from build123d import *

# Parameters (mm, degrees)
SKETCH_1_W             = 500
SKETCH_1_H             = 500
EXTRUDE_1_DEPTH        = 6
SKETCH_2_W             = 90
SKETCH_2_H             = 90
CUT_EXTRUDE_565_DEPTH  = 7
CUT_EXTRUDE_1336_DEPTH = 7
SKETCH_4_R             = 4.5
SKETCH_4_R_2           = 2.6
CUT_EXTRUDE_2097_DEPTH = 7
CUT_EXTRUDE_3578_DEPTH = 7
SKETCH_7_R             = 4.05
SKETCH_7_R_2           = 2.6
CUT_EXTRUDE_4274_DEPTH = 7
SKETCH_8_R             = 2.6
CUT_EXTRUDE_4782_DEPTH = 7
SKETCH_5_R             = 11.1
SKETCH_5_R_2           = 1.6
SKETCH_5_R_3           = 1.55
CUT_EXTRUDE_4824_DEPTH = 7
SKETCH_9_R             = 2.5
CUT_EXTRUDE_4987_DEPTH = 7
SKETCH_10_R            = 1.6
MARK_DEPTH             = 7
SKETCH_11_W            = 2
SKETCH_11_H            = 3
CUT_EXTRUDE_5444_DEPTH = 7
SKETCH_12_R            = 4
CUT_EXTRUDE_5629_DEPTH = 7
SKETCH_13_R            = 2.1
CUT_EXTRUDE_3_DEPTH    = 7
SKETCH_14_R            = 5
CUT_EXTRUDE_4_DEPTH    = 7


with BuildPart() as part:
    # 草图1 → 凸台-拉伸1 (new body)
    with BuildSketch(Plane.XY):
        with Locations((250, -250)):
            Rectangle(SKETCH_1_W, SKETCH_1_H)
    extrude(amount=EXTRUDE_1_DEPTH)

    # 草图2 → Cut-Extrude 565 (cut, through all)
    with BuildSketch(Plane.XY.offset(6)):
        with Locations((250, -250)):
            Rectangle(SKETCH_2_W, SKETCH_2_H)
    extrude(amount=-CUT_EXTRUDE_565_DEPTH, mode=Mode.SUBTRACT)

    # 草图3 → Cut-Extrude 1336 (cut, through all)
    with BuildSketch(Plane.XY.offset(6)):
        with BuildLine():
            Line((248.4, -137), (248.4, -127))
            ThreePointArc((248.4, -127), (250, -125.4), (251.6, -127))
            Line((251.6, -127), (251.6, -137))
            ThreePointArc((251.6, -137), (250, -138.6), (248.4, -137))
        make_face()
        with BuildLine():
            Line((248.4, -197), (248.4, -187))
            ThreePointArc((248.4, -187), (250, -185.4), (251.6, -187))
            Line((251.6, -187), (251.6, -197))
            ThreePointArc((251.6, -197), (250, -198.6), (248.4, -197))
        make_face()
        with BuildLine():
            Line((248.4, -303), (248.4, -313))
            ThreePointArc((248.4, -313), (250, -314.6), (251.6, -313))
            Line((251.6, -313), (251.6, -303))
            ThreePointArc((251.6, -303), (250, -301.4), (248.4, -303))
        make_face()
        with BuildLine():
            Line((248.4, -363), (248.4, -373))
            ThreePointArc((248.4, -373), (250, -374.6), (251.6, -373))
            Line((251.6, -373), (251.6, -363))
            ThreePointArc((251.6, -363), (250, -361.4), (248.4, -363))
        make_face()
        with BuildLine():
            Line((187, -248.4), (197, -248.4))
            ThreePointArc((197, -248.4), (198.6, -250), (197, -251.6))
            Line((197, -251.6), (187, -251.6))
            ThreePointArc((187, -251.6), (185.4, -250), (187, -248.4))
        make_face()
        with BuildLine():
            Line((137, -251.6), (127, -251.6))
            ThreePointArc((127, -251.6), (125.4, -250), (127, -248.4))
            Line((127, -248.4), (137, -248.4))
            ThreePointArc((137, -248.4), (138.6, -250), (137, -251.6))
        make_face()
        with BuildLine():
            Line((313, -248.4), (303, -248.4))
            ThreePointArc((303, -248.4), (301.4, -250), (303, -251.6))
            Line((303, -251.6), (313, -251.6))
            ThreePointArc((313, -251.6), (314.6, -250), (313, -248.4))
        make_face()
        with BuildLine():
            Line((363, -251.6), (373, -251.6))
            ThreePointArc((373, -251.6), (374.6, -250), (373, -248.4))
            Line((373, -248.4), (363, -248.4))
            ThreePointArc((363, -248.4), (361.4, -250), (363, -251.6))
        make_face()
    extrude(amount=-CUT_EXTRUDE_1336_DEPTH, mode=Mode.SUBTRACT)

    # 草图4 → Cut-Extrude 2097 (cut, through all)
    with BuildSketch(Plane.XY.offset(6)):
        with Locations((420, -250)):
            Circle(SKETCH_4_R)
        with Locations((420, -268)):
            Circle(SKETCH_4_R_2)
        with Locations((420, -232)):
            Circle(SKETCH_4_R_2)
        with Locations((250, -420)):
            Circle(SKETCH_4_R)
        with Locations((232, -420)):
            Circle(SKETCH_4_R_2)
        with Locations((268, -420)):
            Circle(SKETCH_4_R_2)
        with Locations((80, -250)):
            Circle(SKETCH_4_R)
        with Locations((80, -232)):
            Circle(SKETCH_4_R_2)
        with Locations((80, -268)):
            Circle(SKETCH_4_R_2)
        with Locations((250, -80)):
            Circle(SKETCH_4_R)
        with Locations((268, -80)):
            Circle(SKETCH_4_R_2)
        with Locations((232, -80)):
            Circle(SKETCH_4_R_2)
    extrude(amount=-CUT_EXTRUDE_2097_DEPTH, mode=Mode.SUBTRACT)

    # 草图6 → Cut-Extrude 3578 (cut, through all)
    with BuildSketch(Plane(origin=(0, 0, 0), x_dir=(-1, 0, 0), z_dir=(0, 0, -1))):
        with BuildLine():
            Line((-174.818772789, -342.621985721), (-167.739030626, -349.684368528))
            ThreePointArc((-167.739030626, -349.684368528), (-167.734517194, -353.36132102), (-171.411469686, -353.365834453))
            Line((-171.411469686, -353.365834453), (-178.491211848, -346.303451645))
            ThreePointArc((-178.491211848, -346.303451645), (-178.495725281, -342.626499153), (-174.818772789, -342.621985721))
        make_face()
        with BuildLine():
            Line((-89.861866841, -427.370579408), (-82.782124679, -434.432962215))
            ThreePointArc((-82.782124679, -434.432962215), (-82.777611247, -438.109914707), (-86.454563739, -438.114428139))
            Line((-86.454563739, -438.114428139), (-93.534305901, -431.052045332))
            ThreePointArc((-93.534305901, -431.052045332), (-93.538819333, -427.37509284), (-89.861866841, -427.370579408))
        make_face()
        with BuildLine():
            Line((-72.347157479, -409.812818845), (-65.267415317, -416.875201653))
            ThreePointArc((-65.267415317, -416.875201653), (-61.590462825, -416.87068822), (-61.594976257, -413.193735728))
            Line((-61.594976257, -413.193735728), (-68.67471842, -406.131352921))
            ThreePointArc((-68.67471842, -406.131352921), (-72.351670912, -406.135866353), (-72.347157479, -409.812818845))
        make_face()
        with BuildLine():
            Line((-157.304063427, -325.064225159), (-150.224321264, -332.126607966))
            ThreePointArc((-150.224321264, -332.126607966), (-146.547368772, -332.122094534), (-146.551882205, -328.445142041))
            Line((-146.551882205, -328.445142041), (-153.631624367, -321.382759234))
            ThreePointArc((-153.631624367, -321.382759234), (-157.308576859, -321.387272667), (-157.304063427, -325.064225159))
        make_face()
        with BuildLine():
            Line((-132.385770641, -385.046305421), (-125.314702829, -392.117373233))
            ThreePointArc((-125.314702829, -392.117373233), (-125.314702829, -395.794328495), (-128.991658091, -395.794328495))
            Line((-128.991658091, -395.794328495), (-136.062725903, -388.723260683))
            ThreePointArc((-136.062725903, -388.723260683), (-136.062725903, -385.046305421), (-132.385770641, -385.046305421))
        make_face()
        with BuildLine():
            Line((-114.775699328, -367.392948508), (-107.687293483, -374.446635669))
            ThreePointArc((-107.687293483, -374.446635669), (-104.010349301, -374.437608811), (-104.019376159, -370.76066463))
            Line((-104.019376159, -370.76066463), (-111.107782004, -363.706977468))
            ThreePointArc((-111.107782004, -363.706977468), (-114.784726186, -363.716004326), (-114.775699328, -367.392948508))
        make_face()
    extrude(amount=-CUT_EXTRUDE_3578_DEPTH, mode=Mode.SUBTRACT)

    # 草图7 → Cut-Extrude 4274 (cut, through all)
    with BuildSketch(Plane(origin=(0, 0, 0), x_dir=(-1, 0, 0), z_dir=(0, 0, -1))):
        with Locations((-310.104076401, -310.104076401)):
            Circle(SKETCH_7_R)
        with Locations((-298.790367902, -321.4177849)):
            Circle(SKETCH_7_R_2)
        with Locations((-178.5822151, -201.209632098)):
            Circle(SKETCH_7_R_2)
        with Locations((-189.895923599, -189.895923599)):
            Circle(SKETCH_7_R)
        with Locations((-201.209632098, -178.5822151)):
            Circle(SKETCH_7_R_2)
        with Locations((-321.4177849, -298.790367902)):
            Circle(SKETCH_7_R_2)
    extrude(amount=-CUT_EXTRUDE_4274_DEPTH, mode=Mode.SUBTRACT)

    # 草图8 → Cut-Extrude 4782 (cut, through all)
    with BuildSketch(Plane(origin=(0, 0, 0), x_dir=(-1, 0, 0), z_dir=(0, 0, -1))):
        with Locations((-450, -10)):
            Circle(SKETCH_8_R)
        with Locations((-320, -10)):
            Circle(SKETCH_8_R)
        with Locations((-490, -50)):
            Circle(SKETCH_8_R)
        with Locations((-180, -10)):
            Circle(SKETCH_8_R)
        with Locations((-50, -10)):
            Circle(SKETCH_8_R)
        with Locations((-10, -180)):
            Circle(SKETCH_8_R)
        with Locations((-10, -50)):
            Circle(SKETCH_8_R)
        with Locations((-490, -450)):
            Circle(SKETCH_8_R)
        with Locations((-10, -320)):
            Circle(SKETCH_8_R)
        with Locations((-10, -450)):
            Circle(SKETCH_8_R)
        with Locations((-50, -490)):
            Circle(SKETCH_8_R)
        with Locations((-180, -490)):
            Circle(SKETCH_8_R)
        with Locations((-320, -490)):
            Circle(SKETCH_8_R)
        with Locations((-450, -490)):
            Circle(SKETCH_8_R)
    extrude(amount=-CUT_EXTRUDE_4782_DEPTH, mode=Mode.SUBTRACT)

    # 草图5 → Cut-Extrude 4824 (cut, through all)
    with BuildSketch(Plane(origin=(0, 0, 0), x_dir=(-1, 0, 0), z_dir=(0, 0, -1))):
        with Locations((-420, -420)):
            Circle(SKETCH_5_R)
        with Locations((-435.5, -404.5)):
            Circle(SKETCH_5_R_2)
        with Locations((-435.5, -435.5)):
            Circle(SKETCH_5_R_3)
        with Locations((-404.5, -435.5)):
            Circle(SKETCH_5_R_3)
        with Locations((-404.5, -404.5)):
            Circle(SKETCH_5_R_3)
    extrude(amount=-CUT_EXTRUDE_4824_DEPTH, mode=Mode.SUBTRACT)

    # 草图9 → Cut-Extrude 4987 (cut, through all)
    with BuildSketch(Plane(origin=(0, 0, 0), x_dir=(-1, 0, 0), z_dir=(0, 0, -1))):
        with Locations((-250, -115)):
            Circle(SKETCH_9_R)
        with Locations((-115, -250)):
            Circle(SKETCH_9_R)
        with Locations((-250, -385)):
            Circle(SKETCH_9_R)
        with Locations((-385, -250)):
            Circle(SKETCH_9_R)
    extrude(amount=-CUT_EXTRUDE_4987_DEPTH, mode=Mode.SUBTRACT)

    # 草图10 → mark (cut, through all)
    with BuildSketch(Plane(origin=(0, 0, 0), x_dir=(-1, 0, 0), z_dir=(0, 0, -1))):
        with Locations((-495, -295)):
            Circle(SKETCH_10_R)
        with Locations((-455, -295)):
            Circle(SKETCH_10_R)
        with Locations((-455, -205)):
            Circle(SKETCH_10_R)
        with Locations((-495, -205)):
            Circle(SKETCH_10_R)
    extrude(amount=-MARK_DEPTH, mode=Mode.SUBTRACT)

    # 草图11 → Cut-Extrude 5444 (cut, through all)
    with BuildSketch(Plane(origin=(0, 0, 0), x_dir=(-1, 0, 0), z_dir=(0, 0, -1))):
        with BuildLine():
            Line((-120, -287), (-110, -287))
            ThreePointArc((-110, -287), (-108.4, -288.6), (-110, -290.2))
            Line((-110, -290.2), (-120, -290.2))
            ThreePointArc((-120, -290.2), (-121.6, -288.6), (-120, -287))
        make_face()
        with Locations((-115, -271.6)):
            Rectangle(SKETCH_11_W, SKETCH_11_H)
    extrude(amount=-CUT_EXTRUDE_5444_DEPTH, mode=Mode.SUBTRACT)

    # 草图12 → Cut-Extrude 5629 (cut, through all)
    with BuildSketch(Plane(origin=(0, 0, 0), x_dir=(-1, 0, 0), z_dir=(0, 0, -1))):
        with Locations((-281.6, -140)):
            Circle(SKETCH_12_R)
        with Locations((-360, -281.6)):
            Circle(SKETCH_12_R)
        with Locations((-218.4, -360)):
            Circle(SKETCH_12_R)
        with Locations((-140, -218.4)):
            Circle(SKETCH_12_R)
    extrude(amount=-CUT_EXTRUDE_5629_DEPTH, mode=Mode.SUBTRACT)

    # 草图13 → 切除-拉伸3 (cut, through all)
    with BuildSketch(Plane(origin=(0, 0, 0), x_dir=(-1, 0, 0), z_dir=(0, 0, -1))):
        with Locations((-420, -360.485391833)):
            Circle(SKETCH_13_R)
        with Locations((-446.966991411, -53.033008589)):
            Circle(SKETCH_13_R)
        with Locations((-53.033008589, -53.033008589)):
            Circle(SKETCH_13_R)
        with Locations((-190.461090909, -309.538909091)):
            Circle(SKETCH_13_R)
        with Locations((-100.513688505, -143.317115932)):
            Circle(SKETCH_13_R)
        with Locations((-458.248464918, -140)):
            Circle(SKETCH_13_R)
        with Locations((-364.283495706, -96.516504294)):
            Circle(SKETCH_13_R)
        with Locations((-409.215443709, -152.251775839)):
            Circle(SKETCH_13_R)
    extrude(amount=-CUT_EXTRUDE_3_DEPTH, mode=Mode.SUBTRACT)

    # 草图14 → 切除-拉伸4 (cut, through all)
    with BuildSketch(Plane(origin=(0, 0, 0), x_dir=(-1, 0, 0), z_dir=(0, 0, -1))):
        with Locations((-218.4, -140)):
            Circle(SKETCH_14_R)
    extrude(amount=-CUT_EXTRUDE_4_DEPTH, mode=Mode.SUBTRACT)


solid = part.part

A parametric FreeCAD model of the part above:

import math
import FreeCAD as App
import Part
import Sketcher

V = App.Vector
Q = App.Units.Quantity

doc = App.newDocument("Part")
body = doc.addObject("PartDesign::Body", "Body")

# Sketch on XY plane
sketch1 = doc.addObject("Sketcher::SketchObject", "Sketch")
body.addObject(sketch1)
sketch1.AttachmentSupport = (doc.XY_Plane, [""])
sketch1.MapMode = "FlatFace"
sketch1.addGeometry(Part.LineSegment(V(0, 0, 0), V(0, -500, 0)), False)
sketch1.addGeometry(Part.LineSegment(V(0, -500, 0), V(500, -500, 0)), False)
sketch1.addGeometry(Part.LineSegment(V(500, -500, 0), V(500, 0, 0)), False)
sketch1.addGeometry(Part.LineSegment(V(500, 0, 0), V(0, 0, 0)), False)
sketch1.addConstraint(Sketcher.Constraint("Coincident", 0, 2, 1, 1))
sketch1.addConstraint(Sketcher.Constraint("Coincident", 1, 2, 2, 1))
sketch1.addConstraint(Sketcher.Constraint("Coincident", 2, 2, 3, 1))
sketch1.addConstraint(Sketcher.Constraint("Coincident", 3, 2, 0, 1))
sketch1.addConstraint(Sketcher.Constraint("Vertical", 0))
sketch1.addConstraint(Sketcher.Constraint("Horizontal", 1))
sketch1.addConstraint(Sketcher.Constraint("Vertical", 2))
sketch1.addConstraint(Sketcher.Constraint("Horizontal", 3))
sketch1.addConstraint(Sketcher.Constraint("Coincident", 3, 2, -1, 1))
sketch1.addConstraint(Sketcher.Constraint("Equal", 3, 0))
sketch1.addConstraint(Sketcher.Constraint("DistanceX", 1, 1, 1, 2, 500.0))
pad1 = doc.addObject("PartDesign::Pad", "Pad")
body.addObject(pad1)
pad1.Profile = sketch1
pad1.Length = 6

# Sketch on XY plane
sketch2 = doc.addObject("Sketcher::SketchObject", "Sketch001")
body.addObject(sketch2)
sketch2.AttachmentSupport = (doc.XY_Plane, [""])
sketch2.MapMode = "FlatFace"
sketch2.AttachmentOffset = App.Placement(V(0, 0, 6), App.Rotation())
sketch2.addGeometry(Part.LineSegment(V(205, -205, 0), V(205, -295, 0)), False)
sketch2.addGeometry(Part.LineSegment(V(205, -295, 0), V(295, -295, 0)), False)
sketch2.addGeometry(Part.LineSegment(V(295, -295, 0), V(295, -205, 0)), False)
sketch2.addGeometry(Part.LineSegment(V(295, -205, 0), V(205, -205, 0)), False)
sketch2.addConstraint(Sketcher.Constraint("Coincident", 0, 2, 1, 1))
sketch2.addConstraint(Sketcher.Constraint("Coincident", 1, 2, 2, 1))
sketch2.addConstraint(Sketcher.Constraint("Coincident", 2, 2, 3, 1))
sketch2.addConstraint(Sketcher.Constraint("Coincident", 3, 2, 0, 1))
sketch2.addConstraint(Sketcher.Constraint("Vertical", 0))
sketch2.addConstraint(Sketcher.Constraint("Horizontal", 1))
sketch2.addConstraint(Sketcher.Constraint("Vertical", 2))
sketch2.addConstraint(Sketcher.Constraint("Horizontal", 3))
sketch2.addConstraint(Sketcher.Constraint("Equal", 3, 0))
sketch2.addConstraint(Sketcher.Constraint("DistanceX", 1, 1, 1, 2, 90.0))
sketch2.addConstraint(Sketcher.Constraint("DistanceX", -1, 1, 0, 2, 205.0))
sketch2.addConstraint(Sketcher.Constraint("DistanceY", 0, 2, -1, 1, 295.0))
pocket1 = doc.addObject("PartDesign::Pocket", "Pocket")
body.addObject(pocket1)
pocket1.Profile = sketch2
pocket1.Type = "ThroughAll"

# Sketch on XY plane
sketch3 = doc.addObject("Sketcher::SketchObject", "Sketch002")
body.addObject(sketch3)
sketch3.AttachmentSupport = (doc.XY_Plane, [""])
sketch3.MapMode = "FlatFace"
sketch3.AttachmentOffset = App.Placement(V(0, 0, 6), App.Rotation())
sketch3.addGeometry(Part.LineSegment(V(248.4, -127, 0), V(248.4, -137, 0)), False)
sketch3.addGeometry(Part.ArcOfCircle(Part.Circle(V(250, -137, 0), V(0, 0, 1), 1.6), math.radians(180), math.radians(360)), False)
sketch3.addGeometry(Part.LineSegment(V(251.6, -137, 0), V(251.6, -127, 0)), False)
sketch3.addGeometry(Part.ArcOfCircle(Part.Circle(V(250, -127, 0), V(0, 0, 1), 1.6), math.radians(0), math.radians(180)), False)
sketch3.addGeometry(Part.LineSegment(V(248.4, -187, 0), V(248.4, -197, 0)), False)
sketch3.addGeometry(Part.ArcOfCircle(Part.Circle(V(250, -197, 0), V(0, 0, 1), 1.6), math.radians(180), math.radians(360)), False)
sketch3.addGeometry(Part.LineSegment(V(251.6, -197, 0), V(251.6, -187, 0)), False)
sketch3.addGeometry(Part.ArcOfCircle(Part.Circle(V(250, -187, 0), V(0, 0, 1), 1.6), math.radians(0), math.radians(180)), False)
sketch3.addGeometry(Part.LineSegment(V(248.4, -303, 0), V(248.4, -313, 0)), False)
sketch3.addGeometry(Part.ArcOfCircle(Part.Circle(V(250, -313, 0), V(0, 0, 1), 1.6), math.radians(180), math.radians(360)), False)
sketch3.addGeometry(Part.LineSegment(V(251.6, -313, 0), V(251.6, -303, 0)), False)
sketch3.addGeometry(Part.ArcOfCircle(Part.Circle(V(250, -303, 0), V(0, 0, 1), 1.6), math.radians(0), math.radians(180)), False)
sketch3.addGeometry(Part.LineSegment(V(248.4, -363, 0), V(248.4, -373, 0)), False)
sketch3.addGeometry(Part.ArcOfCircle(Part.Circle(V(250, -373, 0), V(0, 0, 1), 1.6), math.radians(180), math.radians(360)), False)
sketch3.addGeometry(Part.LineSegment(V(251.6, -373, 0), V(251.6, -363, 0)), False)
sketch3.addGeometry(Part.ArcOfCircle(Part.Circle(V(250, -363, 0), V(0, 0, 1), 1.6), math.radians(0), math.radians(180)), False)
sketch3.addGeometry(Part.LineSegment(V(197, -248.4, 0), V(187, -248.4, 0)), False)
sketch3.addGeometry(Part.ArcOfCircle(Part.Circle(V(187, -250, 0), V(0, 0, 1), 1.6), math.radians(90), math.radians(270)), False)
sketch3.addGeometry(Part.LineSegment(V(187, -251.6, 0), V(197, -251.6, 0)), False)
sketch3.addGeometry(Part.ArcOfCircle(Part.Circle(V(197, -250, 0), V(0, 0, 1), 1.6), math.radians(-90), math.radians(90)), False)
sketch3.addGeometry(Part.LineSegment(V(127, -251.6, 0), V(137, -251.6, 0)), False)
sketch3.addGeometry(Part.ArcOfCircle(Part.Circle(V(137, -250, 0), V(0, 0, 1), 1.6), math.radians(-90), math.radians(90)), False)
sketch3.addGeometry(Part.LineSegment(V(137, -248.4, 0), V(127, -248.4, 0)), False)
sketch3.addGeometry(Part.ArcOfCircle(Part.Circle(V(127, -250, 0), V(0, 0, 1), 1.6), math.radians(90), math.radians(270)), False)
sketch3.addGeometry(Part.LineSegment(V(313, -248.4, 0), V(303, -248.4, 0)), False)
sketch3.addGeometry(Part.ArcOfCircle(Part.Circle(V(303, -250, 0), V(0, 0, 1), 1.6), math.radians(90), math.radians(270)), False)
sketch3.addGeometry(Part.LineSegment(V(303, -251.6, 0), V(313, -251.6, 0)), False)
sketch3.addGeometry(Part.ArcOfCircle(Part.Circle(V(313, -250, 0), V(0, 0, 1), 1.6), math.radians(-90), math.radians(90)), False)
sketch3.addGeometry(Part.LineSegment(V(363, -251.6, 0), V(373, -251.6, 0)), False)
sketch3.addGeometry(Part.ArcOfCircle(Part.Circle(V(373, -250, 0), V(0, 0, 1), 1.6), math.radians(-90), math.radians(90)), False)
sketch3.addGeometry(Part.LineSegment(V(373, -248.4, 0), V(363, -248.4, 0)), False)
sketch3.addGeometry(Part.ArcOfCircle(Part.Circle(V(363, -250, 0), V(0, 0, 1), 1.6), math.radians(90), math.radians(270)), False)
sketch3.addConstraint(Sketcher.Constraint("Tangent", 0, 2, 1, 1))
sketch3.addConstraint(Sketcher.Constraint("Tangent", 1, 2, 2, 1))
sketch3.addConstraint(Sketcher.Constraint("Tangent", 2, 2, 3, 1))
sketch3.addConstraint(Sketcher.Constraint("Tangent", 3, 2, 0, 1))
sketch3.addConstraint(Sketcher.Constraint("Tangent", 4, 2, 5, 1))
sketch3.addConstraint(Sketcher.Constraint("Tangent", 5, 2, 6, 1))
sketch3.addConstraint(Sketcher.Constraint("Tangent", 6, 2, 7, 1))
sketch3.addConstraint(Sketcher.Constraint("Tangent", 7, 2, 4, 1))
sketch3.addConstraint(Sketcher.Constraint("Tangent", 8, 2, 9, 1))
sketch3.addConstraint(Sketcher.Constraint("Tangent", 9, 2, 10, 1))
sketch3.addConstraint(Sketcher.Constraint("Tangent", 10, 2, 11, 1))
sketch3.addConstraint(Sketcher.Constraint("Tangent", 11, 2, 8, 1))
sketch3.addConstraint(Sketcher.Constraint("Tangent", 12, 2, 13, 1))
sketch3.addConstraint(Sketcher.Constraint("Tangent", 13, 2, 14, 1))
sketch3.addConstraint(Sketcher.Constraint("Tangent", 14, 2, 15, 1))
sketch3.addConstraint(Sketcher.Constraint("Tangent", 15, 2, 12, 1))
sketch3.addConstraint(Sketcher.Constraint("Tangent", 16, 2, 17, 1))
sketch3.addConstraint(Sketcher.Constraint("Tangent", 17, 2, 18, 1))
sketch3.addConstraint(Sketcher.Constraint("Tangent", 18, 2, 19, 1))
sketch3.addConstraint(Sketcher.Constraint("Tangent", 19, 2, 16, 1))
sketch3.addConstraint(Sketcher.Constraint("Tangent", 20, 2, 21, 1))
sketch3.addConstraint(Sketcher.Constraint("Tangent", 21, 2, 22, 1))
sketch3.addConstraint(Sketcher.Constraint("Tangent", 22, 2, 23, 1))
sketch3.addConstraint(Sketcher.Constraint("Tangent", 23, 2, 20, 1))
sketch3.addConstraint(Sketcher.Constraint("Tangent", 24, 2, 25, 1))
sketch3.addConstraint(Sketcher.Constraint("Tangent", 25, 2, 26, 1))
sketch3.addConstraint(Sketcher.Constraint("Tangent", 26, 2, 27, 1))
sketch3.addConstraint(Sketcher.Constraint("Tangent", 27, 2, 24, 1))
sketch3.addConstraint(Sketcher.Constraint("Tangent", 28, 2, 29, 1))
sketch3.addConstraint(Sketcher.Constraint("Tangent", 29, 2, 30, 1))
sketch3.addConstraint(Sketcher.Constraint("Tangent", 30, 2, 31, 1))
sketch3.addConstraint(Sketcher.Constraint("Tangent", 31, 2, 28, 1))
sketch3.addConstraint(Sketcher.Constraint("Vertical", 0))
sketch3.addConstraint(Sketcher.Constraint("Vertical", 2))
sketch3.addConstraint(Sketcher.Constraint("Vertical", 4))
sketch3.addConstraint(Sketcher.Constraint("Vertical", 6))
sketch3.addConstraint(Sketcher.Constraint("Vertical", 8))
sketch3.addConstraint(Sketcher.Constraint("Vertical", 10))
sketch3.addConstraint(Sketcher.Constraint("Vertical", 12))
sketch3.addConstraint(Sketcher.Constraint("Vertical", 14))
sketch3.addConstraint(Sketcher.Constraint("Horizontal", 16))
sketch3.addConstraint(Sketcher.Constraint("Horizontal", 18))
sketch3.addConstraint(Sketcher.Constraint("Horizontal", 20))
sketch3.addConstraint(Sketcher.Constraint("Horizontal", 22))
sketch3.addConstraint(Sketcher.Constraint("Horizontal", 24))
sketch3.addConstraint(Sketcher.Constraint("Horizontal", 26))
sketch3.addConstraint(Sketcher.Constraint("Horizontal", 28))
sketch3.addConstraint(Sketcher.Constraint("Horizontal", 30))
sketch3.addConstraint(Sketcher.Constraint("Equal", 3, 5))
sketch3.addConstraint(Sketcher.Constraint("Equal", 7, 9))
sketch3.addConstraint(Sketcher.Constraint("Equal", 11, 13))
sketch3.addConstraint(Sketcher.Constraint("Equal", 15, 17))
sketch3.addConstraint(Sketcher.Constraint("Equal", 19, 21))
sketch3.addConstraint(Sketcher.Constraint("Equal", 23, 25))
sketch3.addConstraint(Sketcher.Constraint("Equal", 27, 29))
sketch3.addConstraint(Sketcher.Constraint("Horizontal", 19, 3, 21, 3))
sketch3.addConstraint(Sketcher.Constraint("Horizontal", 23, 3, 25, 3))
sketch3.addConstraint(Sketcher.Constraint("Horizontal", 27, 3, 29, 3))
sketch3.addConstraint(Sketcher.Constraint("Vertical", 3, 3, 5, 3))
sketch3.addConstraint(Sketcher.Constraint("Vertical", 7, 3, 9, 3))
sketch3.addConstraint(Sketcher.Constraint("Vertical", 11, 3, 13, 3))
sketch3.addConstraint(Sketcher.Constraint("Equal", 18, 20))
sketch3.addConstraint(Sketcher.Constraint("Equal", 22, 24))
sketch3.addConstraint(Sketcher.Constraint("Equal", 26, 28))
sketch3.addConstraint(Sketcher.Constraint("Equal", 30, 0))
sketch3.addConstraint(Sketcher.Constraint("Equal", 2, 4))
sketch3.addConstraint(Sketcher.Constraint("Equal", 6, 8))
sketch3.addConstraint(Sketcher.Constraint("Equal", 10, 12))
sketch3.addConstraint(Sketcher.Constraint("Radius", 1, 1.6))
sketch3.addConstraint(Sketcher.Constraint("DistanceX", 16, 2, 16, 1, 10.0))
sketch3.addConstraint(Sketcher.Constraint("DistanceX", -1, 1, 1, 3, 250.0))
sketch3.addConstraint(Sketcher.Constraint("DistanceY", 1, 3, -1, 1, 137.0))
sketch3.addConstraint(Sketcher.Constraint("DistanceY", 5, 3, -1, 1, 197.0))
sketch3.addConstraint(Sketcher.Constraint("DistanceY", 9, 3, -1, 1, 313.0))
sketch3.addConstraint(Sketcher.Constraint("DistanceY", 13, 3, -1, 1, 373.0))
sketch3.addConstraint(Sketcher.Constraint("DistanceX", -1, 1, 17, 3, 187.0))
sketch3.addConstraint(Sketcher.Constraint("DistanceY", 17, 3, -1, 1, 250.0))
sketch3.addConstraint(Sketcher.Constraint("DistanceX", -1, 1, 21, 3, 137.0))
sketch3.addConstraint(Sketcher.Constraint("DistanceX", -1, 1, 25, 3, 303.0))
sketch3.addConstraint(Sketcher.Constraint("DistanceX", -1, 1, 29, 3, 373.0))
pocket2 = doc.addObject("PartDesign::Pocket", "Pocket001")
body.addObject(pocket2)
pocket2.Profile = sketch3
pocket2.Type = "ThroughAll"

# Sketch on XY plane
sketch4 = doc.addObject("Sketcher::SketchObject", "Sketch003")
body.addObject(sketch4)
sketch4.AttachmentSupport = (doc.XY_Plane, [""])
sketch4.MapMode = "FlatFace"
sketch4.AttachmentOffset = App.Placement(V(0, 0, 6), App.Rotation())
sketch4.addGeometry(Part.Circle(V(420, -250, 0), V(0, 0, 1), 4.5), False)
sketch4.addGeometry(Part.Circle(V(420, -268, 0), V(0, 0, 1), 2.6), False)
sketch4.addGeometry(Part.Circle(V(420, -232, 0), V(0, 0, 1), 2.6), False)
sketch4.addGeometry(Part.Circle(V(250, -420, 0), V(0, 0, 1), 4.5), False)
sketch4.addGeometry(Part.Circle(V(232, -420, 0), V(0, 0, 1), 2.6), False)
sketch4.addGeometry(Part.Circle(V(268, -420, 0), V(0, 0, 1), 2.6), False)
sketch4.addGeometry(Part.Circle(V(80, -250, 0), V(0, 0, 1), 4.5), False)
sketch4.addGeometry(Part.Circle(V(80, -232, 0), V(0, 0, 1), 2.6), False)
sketch4.addGeometry(Part.Circle(V(80, -268, 0), V(0, 0, 1), 2.6), False)
sketch4.addGeometry(Part.Circle(V(250, -80, 0), V(0, 0, 1), 4.5), False)
sketch4.addGeometry(Part.Circle(V(268, -80, 0), V(0, 0, 1), 2.6), False)
sketch4.addGeometry(Part.Circle(V(232, -80, 0), V(0, 0, 1), 2.6), False)
sketch4.addConstraint(Sketcher.Constraint("Equal", 1, 2))
sketch4.addConstraint(Sketcher.Constraint("Equal", 0, 3))
sketch4.addConstraint(Sketcher.Constraint("Equal", 2, 4))
sketch4.addConstraint(Sketcher.Constraint("Equal", 4, 5))
sketch4.addConstraint(Sketcher.Constraint("Equal", 3, 6))
sketch4.addConstraint(Sketcher.Constraint("Equal", 5, 7))
sketch4.addConstraint(Sketcher.Constraint("Equal", 7, 8))
sketch4.addConstraint(Sketcher.Constraint("Equal", 6, 9))
sketch4.addConstraint(Sketcher.Constraint("Equal", 8, 10))
sketch4.addConstraint(Sketcher.Constraint("Equal", 10, 11))
sketch4.addConstraint(Sketcher.Constraint("Horizontal", 3, 3, 4, 3))
sketch4.addConstraint(Sketcher.Constraint("Horizontal", 4, 3, 5, 3))
sketch4.addConstraint(Sketcher.Constraint("Horizontal", 0, 3, 6, 3))
sketch4.addConstraint(Sketcher.Constraint("Horizontal", 2, 3, 7, 3))
sketch4.addConstraint(Sketcher.Constraint("Horizontal", 1, 3, 8, 3))
sketch4.addConstraint(Sketcher.Constraint("Horizontal", 9, 3, 10, 3))
sketch4.addConstraint(Sketcher.Constraint("Horizontal", 10, 3, 11, 3))
sketch4.addConstraint(Sketcher.Constraint("Vertical", 0, 3, 1, 3))
sketch4.addConstraint(Sketcher.Constraint("Vertical", 1, 3, 2, 3))
sketch4.addConstraint(Sketcher.Constraint("Vertical", 6, 3, 7, 3))
sketch4.addConstraint(Sketcher.Constraint("Vertical", 7, 3, 8, 3))
sketch4.addConstraint(Sketcher.Constraint("Vertical", 3, 3, 9, 3))
sketch4.addConstraint(Sketcher.Constraint("Vertical", 5, 3, 10, 3))
sketch4.addConstraint(Sketcher.Constraint("Vertical", 4, 3, 11, 3))
sketch4.addConstraint(Sketcher.Constraint("Diameter", 0, 9.0))
sketch4.addConstraint(Sketcher.Constraint("Diameter", 1, 5.2))
sketch4.addConstraint(Sketcher.Constraint("DistanceX", -1, 1, 0, 3, 420.0))
sketch4.addConstraint(Sketcher.Constraint("DistanceY", 0, 3, -1, 1, 250.0))
sketch4.addConstraint(Sketcher.Constraint("DistanceY", 1, 3, -1, 1, 268.0))
sketch4.addConstraint(Sketcher.Constraint("DistanceY", 2, 3, -1, 1, 232.0))
sketch4.addConstraint(Sketcher.Constraint("DistanceX", -1, 1, 3, 3, 250.0))
sketch4.addConstraint(Sketcher.Constraint("DistanceY", 3, 3, -1, 1, 420.0))
sketch4.addConstraint(Sketcher.Constraint("DistanceX", -1, 1, 4, 3, 232.0))
sketch4.addConstraint(Sketcher.Constraint("DistanceX", -1, 1, 5, 3, 268.0))
sketch4.addConstraint(Sketcher.Constraint("DistanceX", -1, 1, 6, 3, 80.0))
sketch4.addConstraint(Sketcher.Constraint("DistanceY", 9, 3, -1, 1, 80.0))
pocket3 = doc.addObject("PartDesign::Pocket", "Pocket002")
body.addObject(pocket3)
pocket3.Profile = sketch4
pocket3.Type = "ThroughAll"

# Sketch on XY plane
sketch5 = doc.addObject("Sketcher::SketchObject", "Sketch004")
body.addObject(sketch5)
sketch5.AttachmentSupport = (doc.XY_Plane, [""])
sketch5.MapMode = "FlatFace"
sketch5.addGeometry(Part.LineSegment(V(167.7, -349.7, 0), V(174.8, -342.6, 0)), False)
sketch5.addGeometry(Part.ArcOfCircle(Part.Circle(V(176.7, -344.5, 0), V(0, 0, 1), 2.6), math.radians(-45), math.radians(135)), False)
sketch5.addGeometry(Part.LineSegment(V(178.5, -346.3, 0), V(171.4, -353.4, 0)), False)
sketch5.addGeometry(Part.ArcOfCircle(Part.Circle(V(169.6, -351.5, 0), V(0, 0, 1), 2.6), math.radians(135), math.radians(315)), False)
sketch5.addGeometry(Part.LineSegment(V(82.8, -434.4, 0), V(89.9, -427.4, 0)), False)
sketch5.addGeometry(Part.ArcOfCircle(Part.Circle(V(91.7, -429.2, 0), V(0, 0, 1), 2.6), math.radians(-45), math.radians(135)), False)
sketch5.addGeometry(Part.LineSegment(V(93.5, -431.1, 0), V(86.5, -438.1, 0)), False)
sketch5.addGeometry(Part.ArcOfCircle(Part.Circle(V(84.6, -436.3, 0), V(0, 0, 1), 2.6), math.radians(135), math.radians(315)), False)
sketch5.addGeometry(Part.LineSegment(V(72.3, -409.8, 0), V(65.3, -416.9, 0)), False)
sketch5.addGeometry(Part.ArcOfCircle(Part.Circle(V(63.4, -415, 0), V(0, 0, 1), 2.6), math.radians(135), math.radians(315)), False)
sketch5.addGeometry(Part.LineSegment(V(61.6, -413.2, 0), V(68.7, -406.1, 0)), False)
sketch5.addGeometry(Part.ArcOfCircle(Part.Circle(V(70.5, -408, 0), V(0, 0, 1), 2.6), math.radians(-45), math.radians(135)), False)
sketch5.addGeometry(Part.LineSegment(V(157.3, -325.1, 0), V(150.2, -332.1, 0)), False)
sketch5.addGeometry(Part.ArcOfCircle(Part.Circle(V(148.4, -330.3, 0), V(0, 0, 1), 2.6), math.radians(135), math.radians(315)), False)
sketch5.addGeometry(Part.LineSegment(V(146.6, -328.4, 0), V(153.6, -321.4, 0)), False)
sketch5.addGeometry(Part.ArcOfCircle(Part.Circle(V(155.5, -323.2, 0), V(0, 0, 1), 2.6), math.radians(-45), math.radians(135)), False)
sketch5.addGeometry(Part.LineSegment(V(125.3, -392.1, 0), V(132.4, -385, 0)), False)
sketch5.addGeometry(Part.ArcOfCircle(Part.Circle(V(134.2, -386.9, 0), V(0, 0, 1), 2.6), math.radians(-45), math.radians(135)), False)
sketch5.addGeometry(Part.LineSegment(V(136.1, -388.7, 0), V(129, -395.8, 0)), False)
sketch5.addGeometry(Part.ArcOfCircle(Part.Circle(V(127.2, -394, 0), V(0, 0, 1), 2.6), math.radians(135), math.radians(315)), False)
sketch5.addGeometry(Part.LineSegment(V(114.8, -367.4, 0), V(107.7, -374.4, 0)), False)
sketch5.addGeometry(Part.ArcOfCircle(Part.Circle(V(105.9, -372.6, 0), V(0, 0, 1), 2.6), math.radians(135), math.radians(315)), False)
sketch5.addGeometry(Part.LineSegment(V(104, -370.8, 0), V(111.1, -363.7, 0)), False)
sketch5.addGeometry(Part.ArcOfCircle(Part.Circle(V(112.9, -365.5, 0), V(0, 0, 1), 2.6), math.radians(-45), math.radians(135)), False)
sketch5.addConstraint(Sketcher.Constraint("Tangent", 0, 2, 1, 2))
sketch5.addConstraint(Sketcher.Constraint("Tangent", 1, 1, 2, 1))
sketch5.addConstraint(Sketcher.Constraint("Tangent", 2, 2, 3, 2))
sketch5.addConstraint(Sketcher.Constraint("Tangent", 3, 1, 0, 1))
sketch5.addConstraint(Sketcher.Constraint("Tangent", 4, 2, 5, 2))
sketch5.addConstraint(Sketcher.Constraint("Tangent", 5, 1, 6, 1))
sketch5.addConstraint(Sketcher.Constraint("Tangent", 6, 2, 7, 2))
sketch5.addConstraint(Sketcher.Constraint("Tangent", 7, 1, 4, 1))
sketch5.addConstraint(Sketcher.Constraint("Tangent", 8, 2, 9, 2))
sketch5.addConstraint(Sketcher.Constraint("Tangent", 9, 1, 10, 1))
sketch5.addConstraint(Sketcher.Constraint("Tangent", 10, 2, 11, 2))
sketch5.addConstraint(Sketcher.Constraint("Tangent", 11, 1, 8, 1))
sketch5.addConstraint(Sketcher.Constraint("Tangent", 12, 2, 13, 2))
sketch5.addConstraint(Sketcher.Constraint("Tangent", 13, 1, 14, 1))
sketch5.addConstraint(Sketcher.Constraint("Tangent", 14, 2, 15, 2))
sketch5.addConstraint(Sketcher.Constraint("Tangent", 15, 1, 12, 1))
sketch5.addConstraint(Sketcher.Constraint("Tangent", 16, 2, 17, 2))
sketch5.addConstraint(Sketcher.Constraint("Tangent", 17, 1, 18, 1))
sketch5.addConstraint(Sketcher.Constraint("Tangent", 18, 2, 19, 2))
sketch5.addConstraint(Sketcher.Constraint("Tangent", 19, 1, 16, 1))
sketch5.addConstraint(Sketcher.Constraint("Tangent", 20, 2, 21, 2))
sketch5.addConstraint(Sketcher.Constraint("Tangent", 21, 1, 22, 1))
sketch5.addConstraint(Sketcher.Constraint("Tangent", 22, 2, 23, 2))
sketch5.addConstraint(Sketcher.Constraint("Tangent", 23, 1, 20, 1))
sketch5.addConstraint(Sketcher.Constraint("Equal", 1, 3))
sketch5.addConstraint(Sketcher.Constraint("Equal", 3, 5))
sketch5.addConstraint(Sketcher.Constraint("Equal", 5, 7))
sketch5.addConstraint(Sketcher.Constraint("Equal", 7, 9))
sketch5.addConstraint(Sketcher.Constraint("Equal", 9, 11))
sketch5.addConstraint(Sketcher.Constraint("Equal", 11, 13))
sketch5.addConstraint(Sketcher.Constraint("Equal", 13, 15))
sketch5.addConstraint(Sketcher.Constraint("Equal", 15, 17))
sketch5.addConstraint(Sketcher.Constraint("Equal", 17, 19))
sketch5.addConstraint(Sketcher.Constraint("Equal", 19, 21))
sketch5.addConstraint(Sketcher.Constraint("Equal", 21, 23))
sketch5.addConstraint(Sketcher.Constraint("Parallel", 2, 4))
sketch5.addConstraint(Sketcher.Constraint("Parallel", 6, 8))
sketch5.addConstraint(Sketcher.Constraint("Parallel", 10, 12))
sketch5.addConstraint(Sketcher.Constraint("Equal", 2, 4))
sketch5.addConstraint(Sketcher.Constraint("Equal", 6, 8))
sketch5.addConstraint(Sketcher.Constraint("Equal", 10, 12))
sketch5.addConstraint(Sketcher.Constraint("Equal", 14, 16))
sketch5.addConstraint(Sketcher.Constraint("Equal", 18, 20))
sketch5.addConstraint(Sketcher.Constraint("Radius", 1, 2.6))
sketch5.addConstraint(Sketcher.Constraint("Angle", 16, Q("45 deg")))
sketch5.addConstraint(Sketcher.Constraint("Distance", 0, 10.0))
sketch5.addConstraint(Sketcher.Constraint("DistanceX", 17, 3, 3, 3, 35.351002))
sketch5.addConstraint(Sketcher.Constraint("DistanceY", 3, 3, -1, 1, 351.525101))
sketch5.addConstraint(Sketcher.Constraint("DistanceX", -1, 1, 13, 3, 148.388102))
sketch5.addConstraint(Sketcher.Constraint("DistanceY", 8, 2, -1, 1, 416.875202))
sketch5.addConstraint(Sketcher.Constraint("DistanceX", -1, 1, 23, 1, 114.775699))
sketch5.addConstraint(Sketcher.Constraint("DistanceY", 19, 3, 21, 3, 21.352201))
sketch5.addConstraint(Sketcher.Constraint("DistanceY", 21, 1, 23, 3, 5.210702))
sketch5.addConstraint(Sketcher.Constraint("DistanceY", 1, 3, -1, 1, 344.462719))
sketch5.addConstraint(Sketcher.Constraint("DistanceX", -1, 1, 3, 3, 169.57525))
sketch5.addConstraint(Sketcher.Constraint("DistanceY", 19, 3, -1, 1, 393.955851))
sketch5.addConstraint(Sketcher.Constraint("DistanceY", 4, 2, -1, 1, 427.370579))
sketch5.addConstraint(Sketcher.Constraint("DistanceX", -1, 1, 10, 2, 68.674718))
sketch5.addConstraint(Sketcher.Constraint("DistanceY", 14, 2, -1, 1, 321.382759))
sketch5.addConstraint(Sketcher.Constraint("DistanceX", 7, 3, 1, 3, 92.036648))
pocket4 = doc.addObject("PartDesign::Pocket", "Pocket003")
body.addObject(pocket4)
pocket4.Profile = sketch5
pocket4.Type = "ThroughAll"
pocket4.Reversed = True

# Sketch on XY plane
sketch6 = doc.addObject("Sketcher::SketchObject", "Sketch005")
body.addObject(sketch6)
sketch6.AttachmentSupport = (doc.XY_Plane, [""])
sketch6.MapMode = "FlatFace"
sketch6.addGeometry(Part.Circle(V(310.1, -310.1, 0), V(0, 0, 1), 4), False)
sketch6.addGeometry(Part.Circle(V(298.8, -321.4, 0), V(0, 0, 1), 2.6), False)
sketch6.addGeometry(Part.Circle(V(178.6, -201.2, 0), V(0, 0, 1), 2.6), False)
sketch6.addGeometry(Part.Circle(V(189.9, -189.9, 0), V(0, 0, 1), 4), False)
sketch6.addGeometry(Part.Circle(V(201.2, -178.6, 0), V(0, 0, 1), 2.6), False)
sketch6.addGeometry(Part.Circle(V(321.4, -298.8, 0), V(0, 0, 1), 2.6), False)
sketch6.addConstraint(Sketcher.Constraint("Equal", 1, 2))
sketch6.addConstraint(Sketcher.Constraint("Equal", 0, 3))
sketch6.addConstraint(Sketcher.Constraint("Equal", 2, 4))
sketch6.addConstraint(Sketcher.Constraint("Equal", 4, 5))
sketch6.addConstraint(Sketcher.Constraint("Diameter", 0, 8.1))
sketch6.addConstraint(Sketcher.Constraint("Diameter", 1, 5.2))
sketch6.addConstraint(Sketcher.Constraint("DistanceX", 1, 3, 0, 3, 11.313708))
sketch6.addConstraint(Sketcher.Constraint("DistanceY", 1, 3, 0, 3, 11.313708))
sketch6.addConstraint(Sketcher.Constraint("DistanceX", 2, 3, 0, 3, 131.521861))
sketch6.addConstraint(Sketcher.Constraint("DistanceX", 2, 3, 3, 3, 11.313708))
sketch6.addConstraint(Sketcher.Constraint("DistanceY", 2, 3, 3, 3, 11.313708))
sketch6.addConstraint(Sketcher.Constraint("DistanceY", 1, 3, 3, 3, 131.521861))
sketch6.addConstraint(Sketcher.Constraint("DistanceX", 3, 3, 4, 3, 11.313708))
sketch6.addConstraint(Sketcher.Constraint("DistanceY", 3, 3, 4, 3, 11.313708))
sketch6.addConstraint(Sketcher.Constraint("DistanceX", 0, 3, 5, 3, 11.313708))
sketch6.addConstraint(Sketcher.Constraint("DistanceY", 0, 3, 5, 3, 11.313708))
sketch6.addConstraint(Sketcher.Constraint("DistanceX", -1, 1, 0, 3, 310.104076))
sketch6.addConstraint(Sketcher.Constraint("DistanceY", 0, 3, -1, 1, 310.104076))
pocket5 = doc.addObject("PartDesign::Pocket", "Pocket004")
body.addObject(pocket5)
pocket5.Profile = sketch6
pocket5.Type = "ThroughAll"
pocket5.Reversed = True

# Sketch on XY plane
sketch7 = doc.addObject("Sketcher::SketchObject", "Sketch006")
body.addObject(sketch7)
sketch7.AttachmentSupport = (doc.XY_Plane, [""])
sketch7.MapMode = "FlatFace"
sketch7.addGeometry(Part.Circle(V(450, -10, 0), V(0, 0, 1), 2.6), False)
sketch7.addGeometry(Part.Circle(V(320, -10, 0), V(0, 0, 1), 2.6), False)
sketch7.addGeometry(Part.Circle(V(490, -50, 0), V(0, 0, 1), 2.6), False)
sketch7.addGeometry(Part.Circle(V(180, -10, 0), V(0, 0, 1), 2.6), False)
sketch7.addGeometry(Part.Circle(V(50, -10, 0), V(0, 0, 1), 2.6), False)
sketch7.addGeometry(Part.Circle(V(10, -180, 0), V(0, 0, 1), 2.6), False)
sketch7.addGeometry(Part.Circle(V(10, -50, 0), V(0, 0, 1), 2.6), False)
sketch7.addGeometry(Part.Circle(V(490, -450, 0), V(0, 0, 1), 2.6), False)
sketch7.addGeometry(Part.Circle(V(10, -320, 0), V(0, 0, 1), 2.6), False)
sketch7.addGeometry(Part.Circle(V(10, -450, 0), V(0, 0, 1), 2.6), False)
sketch7.addGeometry(Part.Circle(V(50, -490, 0), V(0, 0, 1), 2.6), False)
sketch7.addGeometry(Part.Circle(V(180, -490, 0), V(0, 0, 1), 2.6), False)
sketch7.addGeometry(Part.Circle(V(320, -490, 0), V(0, 0, 1), 2.6), False)
sketch7.addGeometry(Part.Circle(V(450, -490, 0), V(0, 0, 1), 2.6), False)
sketch7.addConstraint(Sketcher.Constraint("Equal", 0, 1))
sketch7.addConstraint(Sketcher.Constraint("Equal", 1, 2))
sketch7.addConstraint(Sketcher.Constraint("Equal", 2, 3))
sketch7.addConstraint(Sketcher.Constraint("Equal", 3, 4))
sketch7.addConstraint(Sketcher.Constraint("Equal", 4, 5))
sketch7.addConstraint(Sketcher.Constraint("Equal", 5, 6))
sketch7.addConstraint(Sketcher.Constraint("Equal", 6, 7))
sketch7.addConstraint(Sketcher.Constraint("Equal", 7, 8))
sketch7.addConstraint(Sketcher.Constraint("Equal", 8, 9))
sketch7.addConstraint(Sketcher.Constraint("Equal", 9, 10))
sketch7.addConstraint(Sketcher.Constraint("Equal", 10, 11))
sketch7.addConstraint(Sketcher.Constraint("Equal", 11, 12))
sketch7.addConstraint(Sketcher.Constraint("Equal", 12, 13))
sketch7.addConstraint(Sketcher.Constraint("Horizontal", 0, 3, 1, 3))
sketch7.addConstraint(Sketcher.Constraint("Horizontal", 1, 3, 3, 3))
sketch7.addConstraint(Sketcher.Constraint("Horizontal", 3, 3, 4, 3))
sketch7.addConstraint(Sketcher.Constraint("Horizontal", 2, 3, 6, 3))
sketch7.addConstraint(Sketcher.Constraint("Horizontal", 7, 3, 9, 3))
sketch7.addConstraint(Sketcher.Constraint("Horizontal", 10, 3, 11, 3))
sketch7.addConstraint(Sketcher.Constraint("Horizontal", 11, 3, 12, 3))
sketch7.addConstraint(Sketcher.Constraint("Horizontal", 12, 3, 13, 3))
sketch7.addConstraint(Sketcher.Constraint("Vertical", 5, 3, 6, 3))
sketch7.addConstraint(Sketcher.Constraint("Vertical", 2, 3, 7, 3))
sketch7.addConstraint(Sketcher.Constraint("Vertical", 6, 3, 8, 3))
sketch7.addConstraint(Sketcher.Constraint("Vertical", 8, 3, 9, 3))
sketch7.addConstraint(Sketcher.Constraint("Vertical", 4, 3, 10, 3))
sketch7.addConstraint(Sketcher.Constraint("Vertical", 3, 3, 11, 3))
sketch7.addConstraint(Sketcher.Constraint("Vertical", 1, 3, 12, 3))
sketch7.addConstraint(Sketcher.Constraint("Vertical", 0, 3, 13, 3))
sketch7.addConstraint(Sketcher.Constraint("Diameter", 0, 5.2))
sketch7.addConstraint(Sketcher.Constraint("DistanceX", -1, 1, 0, 3, 450.0))
sketch7.addConstraint(Sketcher.Constraint("DistanceY", 0, 3, -1, 1, 10.0))
sketch7.addConstraint(Sketcher.Constraint("DistanceX", -1, 1, 1, 3, 320.0))
sketch7.addConstraint(Sketcher.Constraint("DistanceX", -1, 1, 2, 3, 490.0))
sketch7.addConstraint(Sketcher.Constraint("DistanceY", 2, 3, -1, 1, 50.0))
sketch7.addConstraint(Sketcher.Constraint("DistanceX", -1, 1, 3, 3, 180.0))
sketch7.addConstraint(Sketcher.Constraint("DistanceX", -1, 1, 4, 3, 50.0))
sketch7.addConstraint(Sketcher.Constraint("DistanceX", -1, 1, 5, 3, 10.0))
sketch7.addConstraint(Sketcher.Constraint("DistanceY", 5, 3, -1, 1, 180.0))
sketch7.addConstraint(Sketcher.Constraint("DistanceY", 7, 3, -1, 1, 450.0))
sketch7.addConstraint(Sketcher.Constraint("DistanceY", 8, 3, -1, 1, 320.0))
sketch7.addConstraint(Sketcher.Constraint("DistanceY", 10, 3, -1, 1, 490.0))
pocket6 = doc.addObject("PartDesign::Pocket", "Pocket005")
body.addObject(pocket6)
pocket6.Profile = sketch7
pocket6.Type = "ThroughAll"
pocket6.Reversed = True

# Sketch on XY plane
sketch8 = doc.addObject("Sketcher::SketchObject", "Sketch007")
body.addObject(sketch8)
sketch8.AttachmentSupport = (doc.XY_Plane, [""])
sketch8.MapMode = "FlatFace"
sketch8.addGeometry(Part.Circle(V(420, -420, 0), V(0, 0, 1), 11.1), False)
sketch8.addGeometry(Part.Circle(V(435.5, -404.5, 0), V(0, 0, 1), 1.6), False)
sketch8.addGeometry(Part.Circle(V(435.5, -435.5, 0), V(0, 0, 1), 1.6), False)
sketch8.addGeometry(Part.Circle(V(404.5, -435.5, 0), V(0, 0, 1), 1.6), False)
sketch8.addGeometry(Part.Circle(V(404.5, -404.5, 0), V(0, 0, 1), 1.6), False)
sketch8.addConstraint(Sketcher.Constraint("Equal", 2, 3))
sketch8.addConstraint(Sketcher.Constraint("Equal", 3, 4))
sketch8.addConstraint(Sketcher.Constraint("Horizontal", 2, 3, 3, 3))
sketch8.addConstraint(Sketcher.Constraint("Horizontal", 1, 3, 4, 3))
sketch8.addConstraint(Sketcher.Constraint("Vertical", 1, 3, 2, 3))
sketch8.addConstraint(Sketcher.Constraint("Vertical", 3, 3, 4, 3))
sketch8.addConstraint(Sketcher.Constraint("Diameter", 0, 22.2))
sketch8.addConstraint(Sketcher.Constraint("Diameter", 1, 3.2))
sketch8.addConstraint(Sketcher.Constraint("Diameter", 2, 3.1))
sketch8.addConstraint(Sketcher.Constraint("DistanceX", -1, 1, 0, 3, 420.0))
sketch8.addConstraint(Sketcher.Constraint("DistanceY", 0, 3, -1, 1, 420.0))
sketch8.addConstraint(Sketcher.Constraint("DistanceY", 2, 3, 1, 3, 31.0))
sketch8.addConstraint(Sketcher.Constraint("DistanceX", 3, 3, 2, 3, 31.0))
sketch8.addConstraint(Sketcher.Constraint("DistanceX", -1, 1, 1, 3, 435.5))
sketch8.addConstraint(Sketcher.Constraint("DistanceY", 1, 3, -1, 1, 404.5))
pocket7 = doc.addObject("PartDesign::Pocket", "Pocket006")
body.addObject(pocket7)
pocket7.Profile = sketch8
pocket7.Type = "ThroughAll"
pocket7.Reversed = True

# Sketch on XY plane
sketch9 = doc.addObject("Sketcher::SketchObject", "Sketch008")
body.addObject(sketch9)
sketch9.AttachmentSupport = (doc.XY_Plane, [""])
sketch9.MapMode = "FlatFace"
sketch9.addGeometry(Part.Circle(V(250, -115, 0), V(0, 0, 1), 2.5), False)
sketch9.addGeometry(Part.Circle(V(115, -250, 0), V(0, 0, 1), 2.5), False)
sketch9.addGeometry(Part.Circle(V(250, -385, 0), V(0, 0, 1), 2.5), False)
sketch9.addGeometry(Part.Circle(V(385, -250, 0), V(0, 0, 1), 2.5), False)
sketch9.addConstraint(Sketcher.Constraint("Equal", 0, 1))
sketch9.addConstraint(Sketcher.Constraint("Equal", 1, 2))
sketch9.addConstraint(Sketcher.Constraint("Equal", 2, 3))
sketch9.addConstraint(Sketcher.Constraint("Horizontal", 1, 3, 3, 3))
sketch9.addConstraint(Sketcher.Constraint("Vertical", 0, 3, 2, 3))
sketch9.addConstraint(Sketcher.Constraint("Diameter", 0, 5.0))
sketch9.addConstraint(Sketcher.Constraint("DistanceX", -1, 1, 0, 3, 250.0))
sketch9.addConstraint(Sketcher.Constraint("DistanceY", 0, 3, -1, 1, 115.0))
sketch9.addConstraint(Sketcher.Constraint("DistanceX", -1, 1, 1, 3, 115.0))
sketch9.addConstraint(Sketcher.Constraint("DistanceY", 1, 3, -1, 1, 250.0))
sketch9.addConstraint(Sketcher.Constraint("DistanceY", 2, 3, -1, 1, 385.0))
sketch9.addConstraint(Sketcher.Constraint("DistanceX", -1, 1, 3, 3, 385.0))
pocket8 = doc.addObject("PartDesign::Pocket", "Pocket007")
body.addObject(pocket8)
pocket8.Profile = sketch9
pocket8.Type = "ThroughAll"
pocket8.Reversed = True

# Sketch on XY plane
sketch10 = doc.addObject("Sketcher::SketchObject", "Sketch009")
body.addObject(sketch10)
sketch10.AttachmentSupport = (doc.XY_Plane, [""])
sketch10.MapMode = "FlatFace"
sketch10.addGeometry(Part.Circle(V(495, -295, 0), V(0, 0, 1), 1.6), False)
sketch10.addGeometry(Part.Circle(V(455, -295, 0), V(0, 0, 1), 1.6), False)
sketch10.addGeometry(Part.Circle(V(455, -205, 0), V(0, 0, 1), 1.6), False)
sketch10.addGeometry(Part.Circle(V(495, -205, 0), V(0, 0, 1), 1.6), False)
sketch10.addConstraint(Sketcher.Constraint("Equal", 0, 1))
sketch10.addConstraint(Sketcher.Constraint("Equal", 1, 2))
sketch10.addConstraint(Sketcher.Constraint("Equal", 2, 3))
sketch10.addConstraint(Sketcher.Constraint("Horizontal", 0, 3, 1, 3))
sketch10.addConstraint(Sketcher.Constraint("Horizontal", 2, 3, 3, 3))
sketch10.addConstraint(Sketcher.Constraint("Vertical", 1, 3, 2, 3))
sketch10.addConstraint(Sketcher.Constraint("Vertical", 0, 3, 3, 3))
sketch10.addConstraint(Sketcher.Constraint("Diameter", 0, 3.2))
sketch10.addConstraint(Sketcher.Constraint("DistanceX", -1, 1, 0, 3, 495.0))
sketch10.addConstraint(Sketcher.Constraint("DistanceY", 0, 3, -1, 1, 295.0))
sketch10.addConstraint(Sketcher.Constraint("DistanceX", -1, 1, 1, 3, 455.0))
sketch10.addConstraint(Sketcher.Constraint("DistanceY", 2, 3, -1, 1, 205.0))
pocket9 = doc.addObject("PartDesign::Pocket", "Pocket008")
body.addObject(pocket9)
pocket9.Profile = sketch10
pocket9.Type = "ThroughAll"
pocket9.Reversed = True

# Sketch on XY plane
sketch11 = doc.addObject("Sketcher::SketchObject", "Sketch010")
body.addObject(sketch11)
sketch11.AttachmentSupport = (doc.XY_Plane, [""])
sketch11.MapMode = "FlatFace"
sketch11.addGeometry(Part.LineSegment(V(110, -287, 0), V(120, -287, 0)), False)
sketch11.addGeometry(Part.ArcOfCircle(Part.Circle(V(120, -288.6, 0), V(0, 0, 1), 1.6), math.radians(-90), math.radians(90)), False)
sketch11.addGeometry(Part.LineSegment(V(120, -290.2, 0), V(110, -290.2, 0)), False)
sketch11.addGeometry(Part.ArcOfCircle(Part.Circle(V(110, -288.6, 0), V(0, 0, 1), 1.6), math.radians(90), math.radians(270)), False)
sketch11.addGeometry(Part.LineSegment(V(116, -270.1, 0), V(116, -273.1, 0)), False)
sketch11.addGeometry(Part.LineSegment(V(116, -273.1, 0), V(114, -273.1, 0)), False)
sketch11.addGeometry(Part.LineSegment(V(114, -273.1, 0), V(114, -270.1, 0)), False)
sketch11.addGeometry(Part.LineSegment(V(114, -270.1, 0), V(116, -270.1, 0)), False)
sketch11.addConstraint(Sketcher.Constraint("Tangent", 0, 2, 1, 2))
sketch11.addConstraint(Sketcher.Constraint("Tangent", 1, 1, 2, 1))
sketch11.addConstraint(Sketcher.Constraint("Tangent", 2, 2, 3, 2))
sketch11.addConstraint(Sketcher.Constraint("Tangent", 3, 1, 0, 1))
sketch11.addConstraint(Sketcher.Constraint("Coincident", 4, 2, 5, 1))
sketch11.addConstraint(Sketcher.Constraint("Coincident", 5, 2, 6, 1))
sketch11.addConstraint(Sketcher.Constraint("Coincident", 6, 2, 7, 1))
sketch11.addConstraint(Sketcher.Constraint("Coincident", 7, 2, 4, 1))
sketch11.addConstraint(Sketcher.Constraint("Horizontal", 0))
sketch11.addConstraint(Sketcher.Constraint("Horizontal", 2))
sketch11.addConstraint(Sketcher.Constraint("Vertical", 4))
sketch11.addConstraint(Sketcher.Constraint("Horizontal", 5))
sketch11.addConstraint(Sketcher.Constraint("Vertical", 6))
sketch11.addConstraint(Sketcher.Constraint("Horizontal", 7))
sketch11.addConstraint(Sketcher.Constraint("Radius", 1, 1.6))
sketch11.addConstraint(Sketcher.Constraint("DistanceX", 0, 1, 0, 2, 10.0))
sketch11.addConstraint(Sketcher.Constraint("DistanceX", 5, 2, 5, 1, 2.0))
sketch11.addConstraint(Sketcher.Constraint("DistanceY", 4, 2, 4, 1, 3.0))
sketch11.addConstraint(Sketcher.Constraint("DistanceX", -1, 1, 1, 3, 120.0))
sketch11.addConstraint(Sketcher.Constraint("DistanceY", 0, 2, -1, 1, 287.0))
sketch11.addConstraint(Sketcher.Constraint("DistanceX", -1, 1, 4, 2, 116.0))
sketch11.addConstraint(Sketcher.Constraint("DistanceY", 4, 2, -1, 1, 273.1))
pocket10 = doc.addObject("PartDesign::Pocket", "Pocket009")
body.addObject(pocket10)
pocket10.Profile = sketch11
pocket10.Type = "ThroughAll"
pocket10.Reversed = True

# Sketch on XY plane
sketch12 = doc.addObject("Sketcher::SketchObject", "Sketch011")
body.addObject(sketch12)
sketch12.AttachmentSupport = (doc.XY_Plane, [""])
sketch12.MapMode = "FlatFace"
sketch12.addGeometry(Part.Circle(V(281.6, -140, 0), V(0, 0, 1), 4), False)
sketch12.addGeometry(Part.Circle(V(360, -281.6, 0), V(0, 0, 1), 4), False)
sketch12.addGeometry(Part.Circle(V(218.4, -360, 0), V(0, 0, 1), 4), False)
sketch12.addGeometry(Part.Circle(V(140, -218.4, 0), V(0, 0, 1), 4), False)
sketch12.addConstraint(Sketcher.Constraint("Equal", 0, 1))
sketch12.addConstraint(Sketcher.Constraint("Equal", 1, 2))
sketch12.addConstraint(Sketcher.Constraint("Equal", 2, 3))
sketch12.addConstraint(Sketcher.Constraint("Diameter", 0, 8.0))
sketch12.addConstraint(Sketcher.Constraint("DistanceY", 0, 3, -1, 1, 140.0))
sketch12.addConstraint(Sketcher.Constraint("DistanceX", -1, 1, 1, 3, 360.0))
sketch12.addConstraint(Sketcher.Constraint("DistanceY", 2, 3, -1, 1, 360.0))
sketch12.addConstraint(Sketcher.Constraint("DistanceX", -1, 1, 3, 3, 140.0))
sketch12.addConstraint(Sketcher.Constraint("DistanceX", -1, 1, 0, 3, 281.6))
sketch12.addConstraint(Sketcher.Constraint("DistanceY", 1, 3, -1, 1, 281.6))
sketch12.addConstraint(Sketcher.Constraint("DistanceX", -1, 1, 2, 3, 218.4))
sketch12.addConstraint(Sketcher.Constraint("DistanceY", 3, 3, -1, 1, 218.4))
pocket11 = doc.addObject("PartDesign::Pocket", "Pocket010")
body.addObject(pocket11)
pocket11.Profile = sketch12
pocket11.Type = "ThroughAll"
pocket11.Reversed = True

# Sketch on XY plane
sketch13 = doc.addObject("Sketcher::SketchObject", "Sketch012")
body.addObject(sketch13)
sketch13.AttachmentSupport = (doc.XY_Plane, [""])
sketch13.MapMode = "FlatFace"
sketch13.addGeometry(Part.Circle(V(420, -360.5, 0), V(0, 0, 1), 2.1), False)
sketch13.addGeometry(Part.Circle(V(447, -53, 0), V(0, 0, 1), 2.1), False)
sketch13.addGeometry(Part.Circle(V(53, -53, 0), V(0, 0, 1), 2.1), False)
sketch13.addGeometry(Part.Circle(V(190.5, -309.5, 0), V(0, 0, 1), 2.1), False)
sketch13.addGeometry(Part.Circle(V(100.5, -143.3, 0), V(0, 0, 1), 2.1), False)
sketch13.addGeometry(Part.Circle(V(458.2, -140, 0), V(0, 0, 1), 2.1), False)
sketch13.addGeometry(Part.Circle(V(364.3, -96.5, 0), V(0, 0, 1), 2.1), False)
sketch13.addGeometry(Part.Circle(V(409.2, -152.3, 0), V(0, 0, 1), 2.1), False)
sketch13.addConstraint(Sketcher.Constraint("Equal", 0, 1))
sketch13.addConstraint(Sketcher.Constraint("Equal", 1, 2))
sketch13.addConstraint(Sketcher.Constraint("Equal", 2, 3))
sketch13.addConstraint(Sketcher.Constraint("Equal", 3, 4))
sketch13.addConstraint(Sketcher.Constraint("Equal", 4, 5))
sketch13.addConstraint(Sketcher.Constraint("Equal", 5, 6))
sketch13.addConstraint(Sketcher.Constraint("Equal", 6, 7))
sketch13.addConstraint(Sketcher.Constraint("Horizontal", 1, 3, 2, 3))
sketch13.addConstraint(Sketcher.Constraint("Diameter", 0, 4.2))
sketch13.addConstraint(Sketcher.Constraint("DistanceX", -1, 1, 0, 3, 420.0))
sketch13.addConstraint(Sketcher.Constraint("DistanceY", 5, 3, -1, 1, 140.0))
sketch13.addConstraint(Sketcher.Constraint("DistanceY", 3, 3, 2, 3, 256.505901))
sketch13.addConstraint(Sketcher.Constraint("DistanceX", 3, 3, 1, 3, 256.505901))
sketch13.addConstraint(Sketcher.Constraint("DistanceY", 0, 3, -1, 1, 360.485392))
sketch13.addConstraint(Sketcher.Constraint("DistanceX", -1, 1, 1, 3, 446.966991))
sketch13.addConstraint(Sketcher.Constraint("DistanceY", 1, 3, -1, 1, 53.033009))
sketch13.addConstraint(Sketcher.Constraint("DistanceX", -1, 1, 2, 3, 53.033009))
sketch13.addConstraint(Sketcher.Constraint("DistanceX", -1, 1, 4, 3, 100.513689))
sketch13.addConstraint(Sketcher.Constraint("DistanceX", 6, 3, 5, 3, 93.964969))
sketch13.addConstraint(Sketcher.Constraint("DistanceY", 4, 3, 6, 3, 46.800612))
sketch13.addConstraint(Sketcher.Constraint("DistanceX", 7, 3, 5, 3, 49.033021))
sketch13.addConstraint(Sketcher.Constraint("DistanceY", 7, 3, 6, 3, 55.735272))
sketch13.addConstraint(Sketcher.Constraint("DistanceY", 4, 3, -1, 1, 143.317116))
sketch13.addConstraint(Sketcher.Constraint("DistanceX", -1, 1, 5, 3, 458.248465))
pocket12 = doc.addObject("PartDesign::Pocket", "Pocket011")
body.addObject(pocket12)
pocket12.Profile = sketch13
pocket12.Type = "ThroughAll"
pocket12.Reversed = True

# Sketch on XY plane
sketch14 = doc.addObject("Sketcher::SketchObject", "Sketch013")
body.addObject(sketch14)
sketch14.AttachmentSupport = (doc.XY_Plane, [""])
sketch14.MapMode = "FlatFace"
sketch14.addGeometry(Part.Circle(V(218, -140, 0), V(0, 0, 1), 5), False)
sketch14.addConstraint(Sketcher.Constraint("Diameter", 0, 10.0))
sketch14.addConstraint(Sketcher.Constraint("DistanceY", 0, 3, -1, 1, 140.0))
sketch14.addConstraint(Sketcher.Constraint("DistanceX", -1, 1, 0, 3, 218.4))
pocket13 = doc.addObject("PartDesign::Pocket", "Pocket012")
body.addObject(pocket13)
pocket13.Profile = sketch14
pocket13.Type = "ThroughAll"
pocket13.Reversed = True

doc.recompute()
